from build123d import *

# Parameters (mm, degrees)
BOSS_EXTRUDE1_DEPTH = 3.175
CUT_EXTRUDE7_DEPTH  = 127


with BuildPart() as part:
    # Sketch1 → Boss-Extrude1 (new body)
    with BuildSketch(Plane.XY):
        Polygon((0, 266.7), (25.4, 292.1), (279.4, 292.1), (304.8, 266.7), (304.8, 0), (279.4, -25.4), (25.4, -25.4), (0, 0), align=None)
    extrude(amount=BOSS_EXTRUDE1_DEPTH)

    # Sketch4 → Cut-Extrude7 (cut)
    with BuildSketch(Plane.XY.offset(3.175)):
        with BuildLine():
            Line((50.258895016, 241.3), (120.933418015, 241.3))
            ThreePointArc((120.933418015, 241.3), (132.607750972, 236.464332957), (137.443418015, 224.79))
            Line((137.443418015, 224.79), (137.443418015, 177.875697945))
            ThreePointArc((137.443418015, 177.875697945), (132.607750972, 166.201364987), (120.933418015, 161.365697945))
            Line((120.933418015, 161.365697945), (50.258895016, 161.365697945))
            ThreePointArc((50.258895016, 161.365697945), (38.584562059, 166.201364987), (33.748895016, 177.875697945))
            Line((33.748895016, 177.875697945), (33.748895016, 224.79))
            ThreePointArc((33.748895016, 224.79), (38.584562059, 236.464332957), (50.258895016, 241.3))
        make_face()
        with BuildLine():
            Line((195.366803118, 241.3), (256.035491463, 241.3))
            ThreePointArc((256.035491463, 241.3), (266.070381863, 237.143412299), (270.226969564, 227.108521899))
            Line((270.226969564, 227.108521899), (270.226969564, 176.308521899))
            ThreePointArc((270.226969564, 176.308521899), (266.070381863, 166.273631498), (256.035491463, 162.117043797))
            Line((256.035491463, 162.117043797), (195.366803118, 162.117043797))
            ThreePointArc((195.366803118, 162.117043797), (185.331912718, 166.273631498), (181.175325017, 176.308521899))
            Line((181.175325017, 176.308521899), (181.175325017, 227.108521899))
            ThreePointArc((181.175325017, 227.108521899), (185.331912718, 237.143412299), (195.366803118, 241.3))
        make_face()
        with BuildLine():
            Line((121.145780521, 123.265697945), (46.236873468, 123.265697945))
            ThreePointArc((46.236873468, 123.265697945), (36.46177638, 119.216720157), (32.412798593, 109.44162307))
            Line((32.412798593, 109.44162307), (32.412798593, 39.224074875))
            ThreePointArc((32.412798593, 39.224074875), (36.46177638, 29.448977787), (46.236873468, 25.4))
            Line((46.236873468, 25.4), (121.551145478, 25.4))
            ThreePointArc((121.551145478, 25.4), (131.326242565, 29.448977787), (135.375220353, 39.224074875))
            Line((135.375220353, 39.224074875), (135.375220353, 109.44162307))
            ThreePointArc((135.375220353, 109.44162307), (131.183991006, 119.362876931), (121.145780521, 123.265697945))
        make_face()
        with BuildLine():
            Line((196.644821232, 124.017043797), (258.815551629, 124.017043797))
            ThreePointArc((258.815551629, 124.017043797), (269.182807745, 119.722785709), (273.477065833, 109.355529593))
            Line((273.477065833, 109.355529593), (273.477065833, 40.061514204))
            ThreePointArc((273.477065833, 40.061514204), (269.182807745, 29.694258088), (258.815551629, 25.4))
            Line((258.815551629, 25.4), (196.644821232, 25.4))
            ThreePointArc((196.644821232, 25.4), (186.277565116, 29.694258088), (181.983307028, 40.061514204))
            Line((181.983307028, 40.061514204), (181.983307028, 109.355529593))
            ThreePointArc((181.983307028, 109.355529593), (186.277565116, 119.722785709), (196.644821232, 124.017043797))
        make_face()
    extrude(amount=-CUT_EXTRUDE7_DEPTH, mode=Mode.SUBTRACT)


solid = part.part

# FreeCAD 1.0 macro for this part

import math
import FreeCAD as App
import Part
import Sketcher

V = App.Vector
Q = App.Units.Quantity


def add_polygon(sketch, points):
    """Adds a closed chain of lines whose ends are joined by coincident constraints."""
    first, n = sketch.GeometryCount, len(points)
    for a, b in zip(points, points[1:] + points[:1]):
        sketch.addGeometry(Part.LineSegment(App.Vector(*a, 0), App.Vector(*b, 0)), False)
    for i in range(n):
        sketch.addConstraint(Sketcher.Constraint("Coincident", first + i, 2, first + (i + 1) % n, 1))

doc = App.newDocument("Part")
body = doc.addObject("PartDesign::Body", "Body")

sketch1 = doc.addObject("Sketcher::SketchObject", "Sketch")
body.addObject(sketch1)
sketch1.AttachmentSupport = (doc.XY_Plane, [""])
sketch1.MapMode = "FlatFace"
add_polygon(sketch1, [(25, 292), (0, 267), (0, 0), (25, -25), (279, -25), (305, 0), (305, 267), (279, 292)])
sketch1.addConstraint([
    Sketcher.Constraint("Vertical", 1),
    Sketcher.Constraint("Horizontal", 3),
    Sketcher.Constraint("Vertical", 5),
    Sketcher.Constraint("Horizontal", 7),
    Sketcher.Constraint("Coincident", 1, 2, -1, 1),
    Sketcher.Constraint("PointOnObject", 4, 2, -1),
    Sketcher.Constraint("Perpendicular", 0, 2),
    Sketcher.Constraint("Perpendicular", 2, 4),
    Sketcher.Constraint("Perpendicular", 4, 6),
    Sketcher.Constraint("Horizontal", 0, 2, 5, 2),
    Sketcher.Constraint("Vertical", 3, 2, 6, 2),
    Sketcher.Constraint("Vertical", 2, 2, 7, 2),
    Sketcher.Constraint("DistanceX", 3, 1, 3, 2, Q("10 in")),
    Sketcher.Constraint("DistanceY", 1, 2, 1, 1, Q("10.5 in")),
    Sketcher.Constraint("DistanceX", -1, 1, 2, 2, Q("1 in")),
])
pad1 = doc.addObject("PartDesign::Pad", "Pad")
body.addObject(pad1)
pad1.Profile = sketch1
pad1.Length = Q("0.125 in")

sketch2 = doc.addObject("Sketcher::SketchObject", "Sketch001")
body.addObject(sketch2)
sketch2.AttachmentSupport = (doc.XY_Plane, [""])
sketch2.MapMode = "FlatFace"
sketch2.AttachmentOffset = App.Placement(V(0, 0, 0.125 * 25.4), App.Rotation())
sketch2.addGeometry([
    Part.LineSegment(V(121, 241, 0), V(50, 241, 0)),
    Part.ArcOfCircle(Part.Circle(V(50, 225, 0), V(0, 0, 1), 17), math.radians(90), math.radians(180)),
    Part.LineSegment(V(34, 225, 0), V(34, 178, 0)),
    Part.ArcOfCircle(Part.Circle(V(50, 178, 0), V(0, 0, 1), 17), math.radians(180), math.radians(270)),
    Part.LineSegment(V(50, 161, 0), V(121, 161, 0)),
    Part.ArcOfCircle(Part.Circle(V(121, 178, 0), V(0, 0, 1), 17), math.radians(-90), math.radians(0)),
    Part.LineSegment(V(137, 178, 0), V(137, 225, 0)),
    Part.ArcOfCircle(Part.Circle(V(121, 225, 0), V(0, 0, 1), 17), math.radians(0), math.radians(90)),
    Part.LineSegment(V(256, 241, 0), V(195, 241, 0)),
    Part.ArcOfCircle(Part.Circle(V(195, 227, 0), V(0, 0, 1), 14), math.radians(90), math.radians(180)),
    Part.LineSegment(V(181, 227, 0), V(181, 176, 0)),
    Part.ArcOfCircle(Part.Circle(V(195, 176, 0), V(0, 0, 1), 14), math.radians(180), math.radians(270)),
    Part.LineSegment(V(195, 162, 0), V(256, 162, 0)),
    Part.ArcOfCircle(Part.Circle(V(256, 176, 0), V(0, 0, 1), 14), math.radians(-90), math.radians(0)),
    Part.LineSegment(V(270, 176, 0), V(270, 227, 0)),
    Part.ArcOfCircle(Part.Circle(V(256, 227, 0), V(0, 0, 1), 14), math.radians(0), math.radians(90)),
    Part.LineSegment(V(121, 123, 0), V(46, 123, 0)),
    Part.ArcOfCircle(Part.Circle(V(46, 109, 0), V(0, 0, 1), 14), math.radians(90), math.radians(180)),
    Part.LineSegment(V(32, 109, 0), V(32, 39, 0)),
    Part.ArcOfCircle(Part.Circle(V(46, 39, 0), V(0, 0, 1), 14), math.radians(180), math.radians(270)),
    Part.LineSegment(V(46, 25, 0), V(122, 25, 0)),
    Part.ArcOfCircle(Part.Circle(V(122, 39, 0), V(0, 0, 1), 14), math.radians(-90), math.radians(0)),
    Part.LineSegment(V(135, 39, 0), V(135, 109, 0)),
    Part.ArcOfCircle(Part.Circle(V(122, 109, 0), V(0, 0, 1), 14), math.radians(0), math.radians(92)),
    Part.LineSegment(V(259, 124, 0), V(197, 124, 0)),
    Part.ArcOfCircle(Part.Circle(V(197, 109, 0), V(0, 0, 1), 15), math.radians(90), math.radians(180)),
    Part.LineSegment(V(182, 109, 0), V(182, 40, 0)),
    Part.ArcOfCircle(Part.Circle(V(197, 40, 0), V(0, 0, 1), 15), math.radians(180), math.radians(270)),
    Part.LineSegment(V(197, 25, 0), V(259, 25, 0)),
    Part.ArcOfCircle(Part.Circle(V(259, 40, 0), V(0, 0, 1), 15), math.radians(-90), math.radians(0)),
    Part.LineSegment(V(273, 40, 0), V(273, 109, 0)),
    Part.ArcOfCircle(Part.Circle(V(259, 109, 0), V(0, 0, 1), 15), math.radians(0), math.radians(90)),
], False)
sketch2.addConstraint([
    Sketcher.Constraint("Tangent", 0, 2, 1, 1),
    Sketcher.Constraint("Tangent", 1, 2, 2, 1),
    Sketcher.Constraint("Tangent", 2, 2, 3, 1),
    Sketcher.Constraint("Tangent", 3, 2, 4, 1),
    Sketcher.Constraint("Tangent", 4, 2, 5, 1),
    Sketcher.Constraint("Tangent", 5, 2, 6, 1),
    Sketcher.Constraint("Tangent", 6, 2, 7, 1),
    Sketcher.Constraint("Tangent", 7, 2, 0, 1),
    Sketcher.Constraint("Tangent", 8, 2, 9, 1),
    Sketcher.Constraint("Tangent", 9, 2, 10, 1),
    Sketcher.Constraint("Tangent", 10, 2, 11, 1),
    Sketcher.Constraint("Tangent", 11, 2, 12, 1),
    Sketcher.Constraint("Tangent", 12, 2, 13, 1),
    Sketcher.Constraint("Tangent", 13, 2, 14, 1),
    Sketcher.Constraint("Tangent", 14, 2, 15, 1),
    Sketcher.Constraint("Tangent", 15, 2, 8, 1),
    Sketcher.Constraint("Tangent", 16, 2, 17, 1),
    Sketcher.Constraint("Tangent", 17, 2, 18, 1),
    Sketcher.Constraint("Tangent", 18, 2, 19, 1),
    Sketcher.Constraint("Tangent", 19, 2, 20, 1),
    Sketcher.Constraint("Tangent", 20, 2, 21, 1),
    Sketcher.Constraint("Tangent", 21, 2, 22, 1),
    Sketcher.Constraint("Coincident", 22, 2, 23, 1),
    Sketcher.Constraint("Coincident", 23, 2, 16, 1),
    Sketcher.Constraint("Tangent", 24, 2, 25, 1),
    Sketcher.Constraint("Tangent", 25, 2, 26, 1),
    Sketcher.Constraint("Tangent", 26, 2, 27, 1),
    Sketcher.Constraint("Tangent", 27, 2, 28, 1),
    Sketcher.Constraint("Tangent", 28, 2, 29, 1),
    Sketcher.Constraint("Tangent", 29, 2, 30, 1),
    Sketcher.Constraint("Tangent", 30, 2, 31, 1),
    Sketcher.Constraint("Tangent", 31, 2, 24, 1),
    Sketcher.Constraint("Horizontal", 0),
    Sketcher.Constraint("Vertical", 2),
    Sketcher.Constraint("Horizontal", 4),
    Sketcher.Constraint("Vertical", 6),
    Sketcher.Constraint("Horizontal", 8),
    Sketcher.Constraint("Vertical", 10),
    Sketcher.Constraint("Horizontal", 12),
    Sketcher.Constraint("Vertical", 14),
    Sketcher.Constraint("Horizontal", 16),
    Sketcher.Constraint("Vertical", 18),
    Sketcher.Constraint("Horizontal", 20),
    Sketcher.Constraint("Vertical", 22),
    Sketcher.Constraint("Horizontal", 24),
    Sketcher.Constraint("Vertical", 26),
    Sketcher.Constraint("Horizontal", 28),
    Sketcher.Constraint("Vertical", 30),
    Sketcher.Constraint("Equal", 1, 3),
    Sketcher.Constraint("Equal", 3, 5),
    Sketcher.Constraint("Equal", 5, 7),
    Sketcher.Constraint("Equal", 9, 11),
    Sketcher.Constraint("Equal", 11, 13),
    Sketcher.Constraint("Equal", 13, 15),
    Sketcher.Constraint("Equal", 17, 19),
    Sketcher.Constraint("Equal", 19, 21),
    Sketcher.Constraint("Equal", 21, 23),
    Sketcher.Constraint("Equal", 25, 27),
    Sketcher.Constraint("Equal", 27, 29),
    Sketcher.Constraint("Equal", 29, 31),
    Sketcher.Constraint("Horizontal", 7, 2, 8, 2),
    Sketcher.Constraint("Horizontal", 17, 2, 22, 2),
    Sketcher.Constraint("Horizontal", 20, 2, 27, 2),
    Sketcher.Constraint("DistanceY", 10, 2, 10, 1, Q("2 in")),
    Sketcher.Constraint("Radius", 1, Q("0.65 in")),
    Sketcher.Constraint("DistanceY", -1, 1, 19, 2, Q("1 in")),
    Sketcher.Constraint("DistanceY", -1, 1, 0, 2, Q("9.5 in")),
    Sketcher.Constraint("DistanceY", 16, 2, 3, 2, Q("1.5 in")),
    Sketcher.Constraint("DistanceY", 24, 2, 11, 2, Q("1.5 in")),
    Sketcher.Constraint("Radius", 9, Q("14.191478 mm")),
    Sketcher.Constraint("Radius", 17, Q("13.824075 mm")),
    Sketcher.Constraint("Radius", 25, Q("14.661514 mm")),
    Sketcher.Constraint("DistanceY", 5, 3, 9, 3, Q("1.9383002 in")),
    Sketcher.Constraint("DistanceX", 8, 2, 8, 1, Q("60.668688 mm")),
    Sketcher.Constraint("DistanceX", 24, 2, 24, 1, Q("62.17073 mm")),
    Sketcher.Constraint("DistanceX", -1, 1, 17, 2, Q("32.412799 mm")),
    Sketcher.Constraint("DistanceX", 21, 2, 27, 3, Q("61.269601 mm")),
    Sketcher.Constraint("DistanceX", 0, 2, 0, 1, Q("70.674523 mm")),
    Sketcher.Constraint("DistanceX", 16, 2, 16, 1, Q("74.908907 mm")),
    Sketcher.Constraint("DistanceX", 20, 1, 20, 2, Q("75.314272 mm")),
    Sketcher.Constraint("DistanceX", -1, 1, 5, 3, Q("120.933418 mm")),
    Sketcher.Constraint("DistanceX", -1, 1, 13, 3, Q("256.035491 mm")),
])
pocket1 = doc.addObject("PartDesign::Pocket", "Pocket")
body.addObject(pocket1)
pocket1.Profile = sketch2
pocket1.Length = Q("5 in")

doc.recompute()
